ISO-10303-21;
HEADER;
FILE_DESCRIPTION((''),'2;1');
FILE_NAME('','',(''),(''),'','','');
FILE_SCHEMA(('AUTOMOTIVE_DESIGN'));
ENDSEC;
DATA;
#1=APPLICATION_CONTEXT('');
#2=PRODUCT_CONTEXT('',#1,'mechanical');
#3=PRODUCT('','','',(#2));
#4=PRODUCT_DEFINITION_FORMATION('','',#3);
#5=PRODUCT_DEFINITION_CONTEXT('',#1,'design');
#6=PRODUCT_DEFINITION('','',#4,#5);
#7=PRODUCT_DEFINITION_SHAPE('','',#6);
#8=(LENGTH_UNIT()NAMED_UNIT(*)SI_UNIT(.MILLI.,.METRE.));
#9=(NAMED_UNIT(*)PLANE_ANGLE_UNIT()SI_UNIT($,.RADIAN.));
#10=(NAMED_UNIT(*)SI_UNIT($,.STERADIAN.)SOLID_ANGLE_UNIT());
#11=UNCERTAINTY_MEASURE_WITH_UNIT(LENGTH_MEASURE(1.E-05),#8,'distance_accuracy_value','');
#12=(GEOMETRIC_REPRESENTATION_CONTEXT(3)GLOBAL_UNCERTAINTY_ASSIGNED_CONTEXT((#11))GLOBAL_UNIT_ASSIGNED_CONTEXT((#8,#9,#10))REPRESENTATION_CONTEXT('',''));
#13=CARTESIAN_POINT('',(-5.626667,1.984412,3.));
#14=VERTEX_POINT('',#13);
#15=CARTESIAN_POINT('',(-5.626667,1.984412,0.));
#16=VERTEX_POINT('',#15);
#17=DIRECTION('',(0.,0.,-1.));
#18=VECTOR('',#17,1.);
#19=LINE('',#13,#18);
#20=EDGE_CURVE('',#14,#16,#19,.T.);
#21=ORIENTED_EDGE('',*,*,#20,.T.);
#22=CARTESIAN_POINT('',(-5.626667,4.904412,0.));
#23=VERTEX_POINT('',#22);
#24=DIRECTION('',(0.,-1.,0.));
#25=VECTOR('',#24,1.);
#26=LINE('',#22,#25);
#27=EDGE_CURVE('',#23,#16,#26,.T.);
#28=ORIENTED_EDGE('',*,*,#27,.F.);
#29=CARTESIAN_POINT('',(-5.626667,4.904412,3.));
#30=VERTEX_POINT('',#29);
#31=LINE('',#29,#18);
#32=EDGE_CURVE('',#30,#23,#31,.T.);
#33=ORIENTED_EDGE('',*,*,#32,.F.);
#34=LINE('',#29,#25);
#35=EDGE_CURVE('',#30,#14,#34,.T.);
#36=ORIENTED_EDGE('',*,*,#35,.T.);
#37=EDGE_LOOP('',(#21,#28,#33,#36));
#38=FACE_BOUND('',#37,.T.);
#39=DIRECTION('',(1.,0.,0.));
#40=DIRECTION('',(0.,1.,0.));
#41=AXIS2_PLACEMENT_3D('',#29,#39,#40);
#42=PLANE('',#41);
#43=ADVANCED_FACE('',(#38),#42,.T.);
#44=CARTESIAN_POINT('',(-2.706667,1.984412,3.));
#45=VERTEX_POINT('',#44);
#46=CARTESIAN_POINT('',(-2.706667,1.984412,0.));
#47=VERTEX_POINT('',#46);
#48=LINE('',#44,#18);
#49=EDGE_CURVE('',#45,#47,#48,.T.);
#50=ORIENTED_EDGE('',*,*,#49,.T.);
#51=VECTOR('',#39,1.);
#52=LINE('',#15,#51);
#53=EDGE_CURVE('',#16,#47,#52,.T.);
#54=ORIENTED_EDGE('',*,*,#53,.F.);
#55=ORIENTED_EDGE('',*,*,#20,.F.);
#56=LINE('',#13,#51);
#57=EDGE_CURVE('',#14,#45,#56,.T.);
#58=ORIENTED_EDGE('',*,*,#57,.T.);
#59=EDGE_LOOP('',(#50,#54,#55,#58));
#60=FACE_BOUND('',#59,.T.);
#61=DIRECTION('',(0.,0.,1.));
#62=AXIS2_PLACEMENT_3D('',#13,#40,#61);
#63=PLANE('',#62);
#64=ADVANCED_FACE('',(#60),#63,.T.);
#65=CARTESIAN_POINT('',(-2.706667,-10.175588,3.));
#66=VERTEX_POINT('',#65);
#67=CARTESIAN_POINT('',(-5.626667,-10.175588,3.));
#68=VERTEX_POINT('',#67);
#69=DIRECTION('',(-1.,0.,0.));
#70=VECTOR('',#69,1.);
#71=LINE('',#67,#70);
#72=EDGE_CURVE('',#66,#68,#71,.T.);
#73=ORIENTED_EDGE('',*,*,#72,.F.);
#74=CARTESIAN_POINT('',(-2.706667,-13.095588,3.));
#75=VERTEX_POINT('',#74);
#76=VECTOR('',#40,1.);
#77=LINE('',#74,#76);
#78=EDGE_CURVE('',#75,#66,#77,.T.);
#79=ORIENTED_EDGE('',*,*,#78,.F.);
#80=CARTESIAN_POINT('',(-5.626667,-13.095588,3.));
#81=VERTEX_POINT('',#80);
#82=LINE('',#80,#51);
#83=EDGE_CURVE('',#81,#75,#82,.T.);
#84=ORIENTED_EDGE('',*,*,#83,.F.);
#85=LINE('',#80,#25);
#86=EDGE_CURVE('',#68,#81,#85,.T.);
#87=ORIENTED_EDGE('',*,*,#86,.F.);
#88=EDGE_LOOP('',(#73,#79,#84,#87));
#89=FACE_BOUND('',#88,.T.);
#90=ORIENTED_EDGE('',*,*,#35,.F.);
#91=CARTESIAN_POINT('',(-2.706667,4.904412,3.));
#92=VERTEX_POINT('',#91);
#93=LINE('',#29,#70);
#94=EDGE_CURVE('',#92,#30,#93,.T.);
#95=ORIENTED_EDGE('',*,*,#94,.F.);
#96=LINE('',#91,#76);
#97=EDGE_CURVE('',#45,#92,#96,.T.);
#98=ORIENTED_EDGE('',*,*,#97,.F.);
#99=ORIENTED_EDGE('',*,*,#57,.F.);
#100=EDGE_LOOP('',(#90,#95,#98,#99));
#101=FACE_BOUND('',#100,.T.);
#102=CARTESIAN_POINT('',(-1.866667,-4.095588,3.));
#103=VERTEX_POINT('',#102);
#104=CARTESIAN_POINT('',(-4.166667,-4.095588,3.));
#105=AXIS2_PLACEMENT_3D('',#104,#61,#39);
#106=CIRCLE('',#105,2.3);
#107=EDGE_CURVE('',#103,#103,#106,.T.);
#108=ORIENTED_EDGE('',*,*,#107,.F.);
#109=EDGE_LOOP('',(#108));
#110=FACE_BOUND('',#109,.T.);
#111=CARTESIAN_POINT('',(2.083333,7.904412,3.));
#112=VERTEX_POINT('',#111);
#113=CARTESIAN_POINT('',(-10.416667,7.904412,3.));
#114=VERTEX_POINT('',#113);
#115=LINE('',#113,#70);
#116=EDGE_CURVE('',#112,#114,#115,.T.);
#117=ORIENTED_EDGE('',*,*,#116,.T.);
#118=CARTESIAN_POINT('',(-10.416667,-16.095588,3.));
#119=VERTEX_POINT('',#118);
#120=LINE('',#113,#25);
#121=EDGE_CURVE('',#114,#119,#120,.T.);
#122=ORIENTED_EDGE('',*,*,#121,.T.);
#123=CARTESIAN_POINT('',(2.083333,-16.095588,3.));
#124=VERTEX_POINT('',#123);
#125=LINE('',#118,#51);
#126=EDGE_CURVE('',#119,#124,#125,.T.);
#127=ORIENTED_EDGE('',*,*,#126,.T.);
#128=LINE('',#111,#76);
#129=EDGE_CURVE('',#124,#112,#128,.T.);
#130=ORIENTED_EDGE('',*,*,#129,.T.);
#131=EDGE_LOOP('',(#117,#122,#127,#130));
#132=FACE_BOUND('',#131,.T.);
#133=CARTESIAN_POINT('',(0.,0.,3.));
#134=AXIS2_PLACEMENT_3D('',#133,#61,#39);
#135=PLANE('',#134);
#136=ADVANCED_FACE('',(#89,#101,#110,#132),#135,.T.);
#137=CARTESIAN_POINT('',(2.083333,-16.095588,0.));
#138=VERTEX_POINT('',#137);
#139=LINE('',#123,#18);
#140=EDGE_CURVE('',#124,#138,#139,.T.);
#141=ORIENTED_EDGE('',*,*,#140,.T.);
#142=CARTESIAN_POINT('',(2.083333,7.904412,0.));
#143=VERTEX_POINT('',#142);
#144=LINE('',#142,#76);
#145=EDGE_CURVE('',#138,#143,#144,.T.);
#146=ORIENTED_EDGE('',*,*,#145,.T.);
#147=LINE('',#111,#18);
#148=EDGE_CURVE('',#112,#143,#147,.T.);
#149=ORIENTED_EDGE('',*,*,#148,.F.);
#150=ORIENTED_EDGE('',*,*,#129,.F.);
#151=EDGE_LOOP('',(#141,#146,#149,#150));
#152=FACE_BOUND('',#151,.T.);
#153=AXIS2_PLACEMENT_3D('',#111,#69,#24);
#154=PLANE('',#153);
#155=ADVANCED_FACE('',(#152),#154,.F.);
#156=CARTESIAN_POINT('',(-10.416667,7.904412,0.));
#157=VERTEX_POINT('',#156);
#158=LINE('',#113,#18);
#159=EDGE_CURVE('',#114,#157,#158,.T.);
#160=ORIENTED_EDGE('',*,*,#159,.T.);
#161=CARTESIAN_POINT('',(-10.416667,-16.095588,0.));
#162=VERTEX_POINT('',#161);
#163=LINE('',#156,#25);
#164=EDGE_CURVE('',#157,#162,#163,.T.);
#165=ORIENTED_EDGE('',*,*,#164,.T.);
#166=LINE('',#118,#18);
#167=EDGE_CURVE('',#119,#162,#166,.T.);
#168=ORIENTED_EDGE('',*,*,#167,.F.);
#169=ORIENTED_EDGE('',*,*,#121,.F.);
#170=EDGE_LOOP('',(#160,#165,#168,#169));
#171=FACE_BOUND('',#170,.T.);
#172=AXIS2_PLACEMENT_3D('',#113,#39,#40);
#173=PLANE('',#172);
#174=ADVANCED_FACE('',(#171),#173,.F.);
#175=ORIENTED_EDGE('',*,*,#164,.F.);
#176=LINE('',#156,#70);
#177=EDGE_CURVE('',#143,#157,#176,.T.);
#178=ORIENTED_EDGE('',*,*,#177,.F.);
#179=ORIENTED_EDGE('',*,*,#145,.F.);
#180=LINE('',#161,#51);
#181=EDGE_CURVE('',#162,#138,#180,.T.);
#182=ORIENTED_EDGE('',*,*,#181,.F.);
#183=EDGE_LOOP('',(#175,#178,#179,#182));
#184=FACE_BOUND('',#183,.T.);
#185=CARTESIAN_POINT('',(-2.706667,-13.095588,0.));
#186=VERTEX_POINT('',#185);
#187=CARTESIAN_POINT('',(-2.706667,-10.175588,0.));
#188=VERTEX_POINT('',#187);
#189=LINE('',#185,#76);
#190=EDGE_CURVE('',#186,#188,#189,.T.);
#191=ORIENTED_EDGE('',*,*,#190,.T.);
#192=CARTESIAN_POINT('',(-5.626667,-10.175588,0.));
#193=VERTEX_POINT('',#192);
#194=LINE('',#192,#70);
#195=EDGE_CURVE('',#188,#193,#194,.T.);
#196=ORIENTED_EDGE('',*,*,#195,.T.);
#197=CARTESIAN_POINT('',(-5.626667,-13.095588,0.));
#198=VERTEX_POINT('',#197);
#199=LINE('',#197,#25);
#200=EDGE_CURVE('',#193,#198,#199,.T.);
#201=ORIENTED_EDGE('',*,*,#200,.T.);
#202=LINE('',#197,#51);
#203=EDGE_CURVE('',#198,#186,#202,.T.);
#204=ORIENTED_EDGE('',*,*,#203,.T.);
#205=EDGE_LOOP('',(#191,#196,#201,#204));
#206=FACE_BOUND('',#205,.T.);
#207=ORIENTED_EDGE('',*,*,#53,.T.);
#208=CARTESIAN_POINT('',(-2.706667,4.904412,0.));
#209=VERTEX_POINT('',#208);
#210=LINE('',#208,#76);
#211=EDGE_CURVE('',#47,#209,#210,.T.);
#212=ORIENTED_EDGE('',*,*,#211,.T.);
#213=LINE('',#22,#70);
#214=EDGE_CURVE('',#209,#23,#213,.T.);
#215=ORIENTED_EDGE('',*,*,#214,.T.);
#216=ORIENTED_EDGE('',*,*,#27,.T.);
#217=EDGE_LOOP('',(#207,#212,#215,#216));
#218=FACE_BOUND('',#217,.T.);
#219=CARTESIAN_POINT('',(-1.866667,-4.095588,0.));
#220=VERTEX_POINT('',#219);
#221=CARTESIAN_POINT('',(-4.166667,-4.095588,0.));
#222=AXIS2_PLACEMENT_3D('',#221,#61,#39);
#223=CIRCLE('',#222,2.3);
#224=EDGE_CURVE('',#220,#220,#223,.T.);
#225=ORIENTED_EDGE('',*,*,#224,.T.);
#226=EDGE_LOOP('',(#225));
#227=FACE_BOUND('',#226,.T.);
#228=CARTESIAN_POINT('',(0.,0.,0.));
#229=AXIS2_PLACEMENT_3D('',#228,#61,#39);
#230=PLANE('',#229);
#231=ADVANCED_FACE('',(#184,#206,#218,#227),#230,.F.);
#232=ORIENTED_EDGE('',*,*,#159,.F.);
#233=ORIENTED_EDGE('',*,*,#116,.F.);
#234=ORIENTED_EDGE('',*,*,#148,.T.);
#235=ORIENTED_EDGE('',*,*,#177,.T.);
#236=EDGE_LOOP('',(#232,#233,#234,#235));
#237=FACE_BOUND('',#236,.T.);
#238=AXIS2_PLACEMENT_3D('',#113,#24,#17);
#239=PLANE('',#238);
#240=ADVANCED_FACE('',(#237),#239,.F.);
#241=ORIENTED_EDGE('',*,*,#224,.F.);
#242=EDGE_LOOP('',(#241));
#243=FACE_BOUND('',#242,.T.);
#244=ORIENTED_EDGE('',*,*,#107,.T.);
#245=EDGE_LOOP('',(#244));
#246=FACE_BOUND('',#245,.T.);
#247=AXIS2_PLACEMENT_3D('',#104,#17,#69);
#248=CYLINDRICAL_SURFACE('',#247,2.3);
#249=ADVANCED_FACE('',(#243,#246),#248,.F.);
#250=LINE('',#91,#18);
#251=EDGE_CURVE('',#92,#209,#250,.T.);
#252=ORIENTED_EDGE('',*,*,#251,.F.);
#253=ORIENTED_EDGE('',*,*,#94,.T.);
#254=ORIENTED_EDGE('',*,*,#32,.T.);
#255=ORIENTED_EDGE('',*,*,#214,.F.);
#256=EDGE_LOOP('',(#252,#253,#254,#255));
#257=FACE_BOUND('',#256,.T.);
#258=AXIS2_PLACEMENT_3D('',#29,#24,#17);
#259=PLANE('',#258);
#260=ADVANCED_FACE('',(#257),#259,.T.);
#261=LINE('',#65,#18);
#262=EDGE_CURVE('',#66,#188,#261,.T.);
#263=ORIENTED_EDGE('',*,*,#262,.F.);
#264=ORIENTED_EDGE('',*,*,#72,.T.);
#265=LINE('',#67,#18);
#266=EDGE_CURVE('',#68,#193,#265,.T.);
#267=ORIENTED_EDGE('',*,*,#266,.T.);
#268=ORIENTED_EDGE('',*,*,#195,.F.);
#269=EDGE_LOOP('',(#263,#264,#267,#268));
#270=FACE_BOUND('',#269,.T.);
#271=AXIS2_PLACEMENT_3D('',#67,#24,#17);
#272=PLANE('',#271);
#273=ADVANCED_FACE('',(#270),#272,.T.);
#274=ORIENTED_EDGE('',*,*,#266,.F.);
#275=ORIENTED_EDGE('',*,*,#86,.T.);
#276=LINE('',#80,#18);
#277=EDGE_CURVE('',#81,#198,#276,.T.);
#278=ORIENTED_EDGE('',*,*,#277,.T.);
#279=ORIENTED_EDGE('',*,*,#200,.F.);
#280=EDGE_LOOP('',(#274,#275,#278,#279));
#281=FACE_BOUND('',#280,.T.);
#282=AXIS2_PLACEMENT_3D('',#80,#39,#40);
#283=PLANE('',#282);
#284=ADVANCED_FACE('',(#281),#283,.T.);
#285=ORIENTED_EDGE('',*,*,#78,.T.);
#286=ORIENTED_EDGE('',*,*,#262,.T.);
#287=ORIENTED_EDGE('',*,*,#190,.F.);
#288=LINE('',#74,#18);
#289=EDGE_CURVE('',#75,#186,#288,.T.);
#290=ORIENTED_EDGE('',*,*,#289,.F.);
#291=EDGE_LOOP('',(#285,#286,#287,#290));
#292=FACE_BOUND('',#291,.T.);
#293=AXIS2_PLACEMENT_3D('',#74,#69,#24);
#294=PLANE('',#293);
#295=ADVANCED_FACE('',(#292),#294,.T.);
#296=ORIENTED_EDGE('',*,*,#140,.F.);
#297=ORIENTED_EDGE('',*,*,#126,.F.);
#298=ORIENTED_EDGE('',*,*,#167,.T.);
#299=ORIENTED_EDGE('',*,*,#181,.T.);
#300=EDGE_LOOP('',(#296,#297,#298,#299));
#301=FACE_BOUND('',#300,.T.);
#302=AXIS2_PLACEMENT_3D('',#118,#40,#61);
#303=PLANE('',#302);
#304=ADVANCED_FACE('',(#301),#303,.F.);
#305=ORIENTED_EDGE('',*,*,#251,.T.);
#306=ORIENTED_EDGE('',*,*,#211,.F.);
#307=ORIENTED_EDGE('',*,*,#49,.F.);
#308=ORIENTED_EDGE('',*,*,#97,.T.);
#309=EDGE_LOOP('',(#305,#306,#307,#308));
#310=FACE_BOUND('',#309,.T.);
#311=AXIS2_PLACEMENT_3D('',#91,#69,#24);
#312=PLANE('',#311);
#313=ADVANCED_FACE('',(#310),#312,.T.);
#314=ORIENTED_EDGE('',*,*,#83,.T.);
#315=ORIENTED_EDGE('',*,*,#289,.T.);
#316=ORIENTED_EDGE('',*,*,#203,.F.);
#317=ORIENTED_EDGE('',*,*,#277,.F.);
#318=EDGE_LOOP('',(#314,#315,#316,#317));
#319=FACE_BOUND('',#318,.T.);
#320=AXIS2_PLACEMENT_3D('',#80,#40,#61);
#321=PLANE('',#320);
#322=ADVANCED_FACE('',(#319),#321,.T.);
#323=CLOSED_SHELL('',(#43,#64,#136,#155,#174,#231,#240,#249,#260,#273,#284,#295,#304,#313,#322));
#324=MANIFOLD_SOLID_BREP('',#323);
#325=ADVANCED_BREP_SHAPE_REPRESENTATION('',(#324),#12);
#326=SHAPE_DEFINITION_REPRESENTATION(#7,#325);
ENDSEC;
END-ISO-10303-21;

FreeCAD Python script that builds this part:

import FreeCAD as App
import Part
import Sketcher
from FreeCAD import Vector

doc = App.newDocument("Part")
params = doc.addObject("Spreadsheet::Sheet", "Params")
for row, (alias, value) in enumerate([
    ("sketch1_diameter", "4.6 mm"),
    ("sketch1_height", "24 mm"),
    ("sketch1_width", "12.5 mm"),
    ("sketch1_width2", "2.92 mm"),
    ("pad1_length", "3 mm"),
], start=1):
    params.set(f"A{row}", alias)
    params.set(f"B{row}", "=" + value)
    params.setAlias(f"B{row}", alias)

body = doc.addObject("PartDesign::Body", "Body")

# Sketch on XY plane
sketch1 = body.newObject("Sketcher::SketchObject", "Sketch")
sketch1.AttachmentSupport = (doc.getObject("XY_Plane"), [""])
sketch1.MapMode = "FlatFace"
sketch1.addGeometry(Part.LineSegment(Vector(-10.4, 7.9, 0), Vector(-10.4, -16.1, 0)), False)
sketch1.addGeometry(Part.LineSegment(Vector(-10.4, -16.1, 0), Vector(2.1, -16.1, 0)), False)
sketch1.addGeometry(Part.LineSegment(Vector(2.1, -16.1, 0), Vector(2.1, 7.9, 0)), False)
sketch1.addGeometry(Part.LineSegment(Vector(2.1, 7.9, 0), Vector(-10.4, 7.9, 0)), False)
sketch1.addGeometry(Part.LineSegment(Vector(-2.7, -13.1, 0), Vector(-5.6, -13.1, 0)), False)
sketch1.addGeometry(Part.LineSegment(Vector(-5.6, -13.1, 0), Vector(-5.6, -10.2, 0)), False)
sketch1.addGeometry(Part.LineSegment(Vector(-5.6, -10.2, 0), Vector(-2.7, -10.2, 0)), False)
sketch1.addGeometry(Part.LineSegment(Vector(-2.7, -10.2, 0), Vector(-2.7, -13.1, 0)), False)
sketch1.addGeometry(Part.Circle(Vector(-4.2, -4.1, 0), Vector(0, 0, 1), 2.3), False)
sketch1.addGeometry(Part.LineSegment(Vector(-2.7, 2, 0), Vector(-5.6, 2, 0)), False)
sketch1.addGeometry(Part.LineSegment(Vector(-5.6, 2, 0), Vector(-5.6, 4.9, 0)), False)
sketch1.addGeometry(Part.LineSegment(Vector(-5.6, 4.9, 0), Vector(-2.7, 4.9, 0)), False)
sketch1.addGeometry(Part.LineSegment(Vector(-2.7, 4.9, 0), Vector(-2.7, 2, 0)), False)
sketch1.addConstraint(Sketcher.Constraint("Coincident", 0, 2, 1, 1))
sketch1.addConstraint(Sketcher.Constraint("Coincident", 1, 2, 2, 1))
sketch1.addConstraint(Sketcher.Constraint("Coincident", 2, 2, 3, 1))
sketch1.addConstraint(Sketcher.Constraint("Coincident", 3, 2, 0, 1))
sketch1.addConstraint(Sketcher.Constraint("Coincident", 4, 2, 5, 1))
sketch1.addConstraint(Sketcher.Constraint("Coincident", 5, 2, 6, 1))
sketch1.addConstraint(Sketcher.Constraint("Coincident", 6, 2, 7, 1))
sketch1.addConstraint(Sketcher.Constraint("Coincident", 7, 2, 4, 1))
sketch1.addConstraint(Sketcher.Constraint("Coincident", 9, 2, 10, 1))
sketch1.addConstraint(Sketcher.Constraint("Coincident", 10, 2, 11, 1))
sketch1.addConstraint(Sketcher.Constraint("Coincident", 11, 2, 12, 1))
sketch1.addConstraint(Sketcher.Constraint("Coincident", 12, 2, 9, 1))
sketch1.addConstraint(Sketcher.Constraint("Vertical", 0))
sketch1.addConstraint(Sketcher.Constraint("Horizontal", 1))
sketch1.addConstraint(Sketcher.Constraint("Vertical", 2))
sketch1.addConstraint(Sketcher.Constraint("Horizontal", 3))
sketch1.addConstraint(Sketcher.Constraint("Horizontal", 4))
sketch1.addConstraint(Sketcher.Constraint("Vertical", 5))
sketch1.addConstraint(Sketcher.Constraint("Horizontal", 6))
sketch1.addConstraint(Sketcher.Constraint("Vertical", 7))
sketch1.addConstraint(Sketcher.Constraint("Horizontal", 9))
sketch1.addConstraint(Sketcher.Constraint("Vertical", 10))
sketch1.addConstraint(Sketcher.Constraint("Horizontal", 11))
sketch1.addConstraint(Sketcher.Constraint("Vertical", 12))
sketch1.addConstraint(Sketcher.Constraint("Vertical", 5, 2, 9, 2))
sketch1.addConstraint(Sketcher.Constraint("Vertical", 7, 2, 11, 2))
sketch1.addConstraint(Sketcher.Constraint("Equal", 11, 5))
sketch1.addConstraint(Sketcher.Constraint("Equal", 7, 10))
sketch1.addConstraint(Sketcher.Constraint("Diameter", 8, 4.6))
sketch1.addConstraint(Sketcher.Constraint("DistanceY", 0, 2, 0, 1, 24.0))
sketch1.addConstraint(Sketcher.Constraint("DistanceX", 1, 1, 1, 2, 12.5))
sketch1.addConstraint(Sketcher.Constraint("DistanceY", 0, 2, 8, 3, 12.0))
sketch1.addConstraint(Sketcher.Constraint("DistanceY", 0, 2, 4, 2, 3.0))
sketch1.addConstraint(Sketcher.Constraint("DistanceY", 10, 2, 3, 2, 3.0))
sketch1.addConstraint(Sketcher.Constraint("DistanceX", 4, 2, 4, 1, 2.92))
sketch1.addConstraint(Sketcher.Constraint("DistanceX", 0, 2, 8, 3, 6.25))
sketch1.addConstraint(Sketcher.Constraint("DistanceX", 0, 2, 4, 2, 4.79))
sketch1.addConstraint(Sketcher.Constraint("DistanceY", 8, 3, -1, 1, 4.095588))
sketch1.addConstraint(Sketcher.Constraint("DistanceX", 8, 3, -1, 1, 4.166667))
sketch1.setExpression("Constraints[28]", "Params.sketch1_diameter")
sketch1.setExpression("Constraints[29]", "Params.sketch1_height")
sketch1.setExpression("Constraints[30]", "Params.sketch1_width")
sketch1.setExpression("Constraints[34]", "Params.sketch1_width2")
pad1 = body.newObject("PartDesign::Pad", "Pad")
pad1.Profile = sketch1
pad1.setExpression("Length", "Params.pad1_length")

doc.recompute()
